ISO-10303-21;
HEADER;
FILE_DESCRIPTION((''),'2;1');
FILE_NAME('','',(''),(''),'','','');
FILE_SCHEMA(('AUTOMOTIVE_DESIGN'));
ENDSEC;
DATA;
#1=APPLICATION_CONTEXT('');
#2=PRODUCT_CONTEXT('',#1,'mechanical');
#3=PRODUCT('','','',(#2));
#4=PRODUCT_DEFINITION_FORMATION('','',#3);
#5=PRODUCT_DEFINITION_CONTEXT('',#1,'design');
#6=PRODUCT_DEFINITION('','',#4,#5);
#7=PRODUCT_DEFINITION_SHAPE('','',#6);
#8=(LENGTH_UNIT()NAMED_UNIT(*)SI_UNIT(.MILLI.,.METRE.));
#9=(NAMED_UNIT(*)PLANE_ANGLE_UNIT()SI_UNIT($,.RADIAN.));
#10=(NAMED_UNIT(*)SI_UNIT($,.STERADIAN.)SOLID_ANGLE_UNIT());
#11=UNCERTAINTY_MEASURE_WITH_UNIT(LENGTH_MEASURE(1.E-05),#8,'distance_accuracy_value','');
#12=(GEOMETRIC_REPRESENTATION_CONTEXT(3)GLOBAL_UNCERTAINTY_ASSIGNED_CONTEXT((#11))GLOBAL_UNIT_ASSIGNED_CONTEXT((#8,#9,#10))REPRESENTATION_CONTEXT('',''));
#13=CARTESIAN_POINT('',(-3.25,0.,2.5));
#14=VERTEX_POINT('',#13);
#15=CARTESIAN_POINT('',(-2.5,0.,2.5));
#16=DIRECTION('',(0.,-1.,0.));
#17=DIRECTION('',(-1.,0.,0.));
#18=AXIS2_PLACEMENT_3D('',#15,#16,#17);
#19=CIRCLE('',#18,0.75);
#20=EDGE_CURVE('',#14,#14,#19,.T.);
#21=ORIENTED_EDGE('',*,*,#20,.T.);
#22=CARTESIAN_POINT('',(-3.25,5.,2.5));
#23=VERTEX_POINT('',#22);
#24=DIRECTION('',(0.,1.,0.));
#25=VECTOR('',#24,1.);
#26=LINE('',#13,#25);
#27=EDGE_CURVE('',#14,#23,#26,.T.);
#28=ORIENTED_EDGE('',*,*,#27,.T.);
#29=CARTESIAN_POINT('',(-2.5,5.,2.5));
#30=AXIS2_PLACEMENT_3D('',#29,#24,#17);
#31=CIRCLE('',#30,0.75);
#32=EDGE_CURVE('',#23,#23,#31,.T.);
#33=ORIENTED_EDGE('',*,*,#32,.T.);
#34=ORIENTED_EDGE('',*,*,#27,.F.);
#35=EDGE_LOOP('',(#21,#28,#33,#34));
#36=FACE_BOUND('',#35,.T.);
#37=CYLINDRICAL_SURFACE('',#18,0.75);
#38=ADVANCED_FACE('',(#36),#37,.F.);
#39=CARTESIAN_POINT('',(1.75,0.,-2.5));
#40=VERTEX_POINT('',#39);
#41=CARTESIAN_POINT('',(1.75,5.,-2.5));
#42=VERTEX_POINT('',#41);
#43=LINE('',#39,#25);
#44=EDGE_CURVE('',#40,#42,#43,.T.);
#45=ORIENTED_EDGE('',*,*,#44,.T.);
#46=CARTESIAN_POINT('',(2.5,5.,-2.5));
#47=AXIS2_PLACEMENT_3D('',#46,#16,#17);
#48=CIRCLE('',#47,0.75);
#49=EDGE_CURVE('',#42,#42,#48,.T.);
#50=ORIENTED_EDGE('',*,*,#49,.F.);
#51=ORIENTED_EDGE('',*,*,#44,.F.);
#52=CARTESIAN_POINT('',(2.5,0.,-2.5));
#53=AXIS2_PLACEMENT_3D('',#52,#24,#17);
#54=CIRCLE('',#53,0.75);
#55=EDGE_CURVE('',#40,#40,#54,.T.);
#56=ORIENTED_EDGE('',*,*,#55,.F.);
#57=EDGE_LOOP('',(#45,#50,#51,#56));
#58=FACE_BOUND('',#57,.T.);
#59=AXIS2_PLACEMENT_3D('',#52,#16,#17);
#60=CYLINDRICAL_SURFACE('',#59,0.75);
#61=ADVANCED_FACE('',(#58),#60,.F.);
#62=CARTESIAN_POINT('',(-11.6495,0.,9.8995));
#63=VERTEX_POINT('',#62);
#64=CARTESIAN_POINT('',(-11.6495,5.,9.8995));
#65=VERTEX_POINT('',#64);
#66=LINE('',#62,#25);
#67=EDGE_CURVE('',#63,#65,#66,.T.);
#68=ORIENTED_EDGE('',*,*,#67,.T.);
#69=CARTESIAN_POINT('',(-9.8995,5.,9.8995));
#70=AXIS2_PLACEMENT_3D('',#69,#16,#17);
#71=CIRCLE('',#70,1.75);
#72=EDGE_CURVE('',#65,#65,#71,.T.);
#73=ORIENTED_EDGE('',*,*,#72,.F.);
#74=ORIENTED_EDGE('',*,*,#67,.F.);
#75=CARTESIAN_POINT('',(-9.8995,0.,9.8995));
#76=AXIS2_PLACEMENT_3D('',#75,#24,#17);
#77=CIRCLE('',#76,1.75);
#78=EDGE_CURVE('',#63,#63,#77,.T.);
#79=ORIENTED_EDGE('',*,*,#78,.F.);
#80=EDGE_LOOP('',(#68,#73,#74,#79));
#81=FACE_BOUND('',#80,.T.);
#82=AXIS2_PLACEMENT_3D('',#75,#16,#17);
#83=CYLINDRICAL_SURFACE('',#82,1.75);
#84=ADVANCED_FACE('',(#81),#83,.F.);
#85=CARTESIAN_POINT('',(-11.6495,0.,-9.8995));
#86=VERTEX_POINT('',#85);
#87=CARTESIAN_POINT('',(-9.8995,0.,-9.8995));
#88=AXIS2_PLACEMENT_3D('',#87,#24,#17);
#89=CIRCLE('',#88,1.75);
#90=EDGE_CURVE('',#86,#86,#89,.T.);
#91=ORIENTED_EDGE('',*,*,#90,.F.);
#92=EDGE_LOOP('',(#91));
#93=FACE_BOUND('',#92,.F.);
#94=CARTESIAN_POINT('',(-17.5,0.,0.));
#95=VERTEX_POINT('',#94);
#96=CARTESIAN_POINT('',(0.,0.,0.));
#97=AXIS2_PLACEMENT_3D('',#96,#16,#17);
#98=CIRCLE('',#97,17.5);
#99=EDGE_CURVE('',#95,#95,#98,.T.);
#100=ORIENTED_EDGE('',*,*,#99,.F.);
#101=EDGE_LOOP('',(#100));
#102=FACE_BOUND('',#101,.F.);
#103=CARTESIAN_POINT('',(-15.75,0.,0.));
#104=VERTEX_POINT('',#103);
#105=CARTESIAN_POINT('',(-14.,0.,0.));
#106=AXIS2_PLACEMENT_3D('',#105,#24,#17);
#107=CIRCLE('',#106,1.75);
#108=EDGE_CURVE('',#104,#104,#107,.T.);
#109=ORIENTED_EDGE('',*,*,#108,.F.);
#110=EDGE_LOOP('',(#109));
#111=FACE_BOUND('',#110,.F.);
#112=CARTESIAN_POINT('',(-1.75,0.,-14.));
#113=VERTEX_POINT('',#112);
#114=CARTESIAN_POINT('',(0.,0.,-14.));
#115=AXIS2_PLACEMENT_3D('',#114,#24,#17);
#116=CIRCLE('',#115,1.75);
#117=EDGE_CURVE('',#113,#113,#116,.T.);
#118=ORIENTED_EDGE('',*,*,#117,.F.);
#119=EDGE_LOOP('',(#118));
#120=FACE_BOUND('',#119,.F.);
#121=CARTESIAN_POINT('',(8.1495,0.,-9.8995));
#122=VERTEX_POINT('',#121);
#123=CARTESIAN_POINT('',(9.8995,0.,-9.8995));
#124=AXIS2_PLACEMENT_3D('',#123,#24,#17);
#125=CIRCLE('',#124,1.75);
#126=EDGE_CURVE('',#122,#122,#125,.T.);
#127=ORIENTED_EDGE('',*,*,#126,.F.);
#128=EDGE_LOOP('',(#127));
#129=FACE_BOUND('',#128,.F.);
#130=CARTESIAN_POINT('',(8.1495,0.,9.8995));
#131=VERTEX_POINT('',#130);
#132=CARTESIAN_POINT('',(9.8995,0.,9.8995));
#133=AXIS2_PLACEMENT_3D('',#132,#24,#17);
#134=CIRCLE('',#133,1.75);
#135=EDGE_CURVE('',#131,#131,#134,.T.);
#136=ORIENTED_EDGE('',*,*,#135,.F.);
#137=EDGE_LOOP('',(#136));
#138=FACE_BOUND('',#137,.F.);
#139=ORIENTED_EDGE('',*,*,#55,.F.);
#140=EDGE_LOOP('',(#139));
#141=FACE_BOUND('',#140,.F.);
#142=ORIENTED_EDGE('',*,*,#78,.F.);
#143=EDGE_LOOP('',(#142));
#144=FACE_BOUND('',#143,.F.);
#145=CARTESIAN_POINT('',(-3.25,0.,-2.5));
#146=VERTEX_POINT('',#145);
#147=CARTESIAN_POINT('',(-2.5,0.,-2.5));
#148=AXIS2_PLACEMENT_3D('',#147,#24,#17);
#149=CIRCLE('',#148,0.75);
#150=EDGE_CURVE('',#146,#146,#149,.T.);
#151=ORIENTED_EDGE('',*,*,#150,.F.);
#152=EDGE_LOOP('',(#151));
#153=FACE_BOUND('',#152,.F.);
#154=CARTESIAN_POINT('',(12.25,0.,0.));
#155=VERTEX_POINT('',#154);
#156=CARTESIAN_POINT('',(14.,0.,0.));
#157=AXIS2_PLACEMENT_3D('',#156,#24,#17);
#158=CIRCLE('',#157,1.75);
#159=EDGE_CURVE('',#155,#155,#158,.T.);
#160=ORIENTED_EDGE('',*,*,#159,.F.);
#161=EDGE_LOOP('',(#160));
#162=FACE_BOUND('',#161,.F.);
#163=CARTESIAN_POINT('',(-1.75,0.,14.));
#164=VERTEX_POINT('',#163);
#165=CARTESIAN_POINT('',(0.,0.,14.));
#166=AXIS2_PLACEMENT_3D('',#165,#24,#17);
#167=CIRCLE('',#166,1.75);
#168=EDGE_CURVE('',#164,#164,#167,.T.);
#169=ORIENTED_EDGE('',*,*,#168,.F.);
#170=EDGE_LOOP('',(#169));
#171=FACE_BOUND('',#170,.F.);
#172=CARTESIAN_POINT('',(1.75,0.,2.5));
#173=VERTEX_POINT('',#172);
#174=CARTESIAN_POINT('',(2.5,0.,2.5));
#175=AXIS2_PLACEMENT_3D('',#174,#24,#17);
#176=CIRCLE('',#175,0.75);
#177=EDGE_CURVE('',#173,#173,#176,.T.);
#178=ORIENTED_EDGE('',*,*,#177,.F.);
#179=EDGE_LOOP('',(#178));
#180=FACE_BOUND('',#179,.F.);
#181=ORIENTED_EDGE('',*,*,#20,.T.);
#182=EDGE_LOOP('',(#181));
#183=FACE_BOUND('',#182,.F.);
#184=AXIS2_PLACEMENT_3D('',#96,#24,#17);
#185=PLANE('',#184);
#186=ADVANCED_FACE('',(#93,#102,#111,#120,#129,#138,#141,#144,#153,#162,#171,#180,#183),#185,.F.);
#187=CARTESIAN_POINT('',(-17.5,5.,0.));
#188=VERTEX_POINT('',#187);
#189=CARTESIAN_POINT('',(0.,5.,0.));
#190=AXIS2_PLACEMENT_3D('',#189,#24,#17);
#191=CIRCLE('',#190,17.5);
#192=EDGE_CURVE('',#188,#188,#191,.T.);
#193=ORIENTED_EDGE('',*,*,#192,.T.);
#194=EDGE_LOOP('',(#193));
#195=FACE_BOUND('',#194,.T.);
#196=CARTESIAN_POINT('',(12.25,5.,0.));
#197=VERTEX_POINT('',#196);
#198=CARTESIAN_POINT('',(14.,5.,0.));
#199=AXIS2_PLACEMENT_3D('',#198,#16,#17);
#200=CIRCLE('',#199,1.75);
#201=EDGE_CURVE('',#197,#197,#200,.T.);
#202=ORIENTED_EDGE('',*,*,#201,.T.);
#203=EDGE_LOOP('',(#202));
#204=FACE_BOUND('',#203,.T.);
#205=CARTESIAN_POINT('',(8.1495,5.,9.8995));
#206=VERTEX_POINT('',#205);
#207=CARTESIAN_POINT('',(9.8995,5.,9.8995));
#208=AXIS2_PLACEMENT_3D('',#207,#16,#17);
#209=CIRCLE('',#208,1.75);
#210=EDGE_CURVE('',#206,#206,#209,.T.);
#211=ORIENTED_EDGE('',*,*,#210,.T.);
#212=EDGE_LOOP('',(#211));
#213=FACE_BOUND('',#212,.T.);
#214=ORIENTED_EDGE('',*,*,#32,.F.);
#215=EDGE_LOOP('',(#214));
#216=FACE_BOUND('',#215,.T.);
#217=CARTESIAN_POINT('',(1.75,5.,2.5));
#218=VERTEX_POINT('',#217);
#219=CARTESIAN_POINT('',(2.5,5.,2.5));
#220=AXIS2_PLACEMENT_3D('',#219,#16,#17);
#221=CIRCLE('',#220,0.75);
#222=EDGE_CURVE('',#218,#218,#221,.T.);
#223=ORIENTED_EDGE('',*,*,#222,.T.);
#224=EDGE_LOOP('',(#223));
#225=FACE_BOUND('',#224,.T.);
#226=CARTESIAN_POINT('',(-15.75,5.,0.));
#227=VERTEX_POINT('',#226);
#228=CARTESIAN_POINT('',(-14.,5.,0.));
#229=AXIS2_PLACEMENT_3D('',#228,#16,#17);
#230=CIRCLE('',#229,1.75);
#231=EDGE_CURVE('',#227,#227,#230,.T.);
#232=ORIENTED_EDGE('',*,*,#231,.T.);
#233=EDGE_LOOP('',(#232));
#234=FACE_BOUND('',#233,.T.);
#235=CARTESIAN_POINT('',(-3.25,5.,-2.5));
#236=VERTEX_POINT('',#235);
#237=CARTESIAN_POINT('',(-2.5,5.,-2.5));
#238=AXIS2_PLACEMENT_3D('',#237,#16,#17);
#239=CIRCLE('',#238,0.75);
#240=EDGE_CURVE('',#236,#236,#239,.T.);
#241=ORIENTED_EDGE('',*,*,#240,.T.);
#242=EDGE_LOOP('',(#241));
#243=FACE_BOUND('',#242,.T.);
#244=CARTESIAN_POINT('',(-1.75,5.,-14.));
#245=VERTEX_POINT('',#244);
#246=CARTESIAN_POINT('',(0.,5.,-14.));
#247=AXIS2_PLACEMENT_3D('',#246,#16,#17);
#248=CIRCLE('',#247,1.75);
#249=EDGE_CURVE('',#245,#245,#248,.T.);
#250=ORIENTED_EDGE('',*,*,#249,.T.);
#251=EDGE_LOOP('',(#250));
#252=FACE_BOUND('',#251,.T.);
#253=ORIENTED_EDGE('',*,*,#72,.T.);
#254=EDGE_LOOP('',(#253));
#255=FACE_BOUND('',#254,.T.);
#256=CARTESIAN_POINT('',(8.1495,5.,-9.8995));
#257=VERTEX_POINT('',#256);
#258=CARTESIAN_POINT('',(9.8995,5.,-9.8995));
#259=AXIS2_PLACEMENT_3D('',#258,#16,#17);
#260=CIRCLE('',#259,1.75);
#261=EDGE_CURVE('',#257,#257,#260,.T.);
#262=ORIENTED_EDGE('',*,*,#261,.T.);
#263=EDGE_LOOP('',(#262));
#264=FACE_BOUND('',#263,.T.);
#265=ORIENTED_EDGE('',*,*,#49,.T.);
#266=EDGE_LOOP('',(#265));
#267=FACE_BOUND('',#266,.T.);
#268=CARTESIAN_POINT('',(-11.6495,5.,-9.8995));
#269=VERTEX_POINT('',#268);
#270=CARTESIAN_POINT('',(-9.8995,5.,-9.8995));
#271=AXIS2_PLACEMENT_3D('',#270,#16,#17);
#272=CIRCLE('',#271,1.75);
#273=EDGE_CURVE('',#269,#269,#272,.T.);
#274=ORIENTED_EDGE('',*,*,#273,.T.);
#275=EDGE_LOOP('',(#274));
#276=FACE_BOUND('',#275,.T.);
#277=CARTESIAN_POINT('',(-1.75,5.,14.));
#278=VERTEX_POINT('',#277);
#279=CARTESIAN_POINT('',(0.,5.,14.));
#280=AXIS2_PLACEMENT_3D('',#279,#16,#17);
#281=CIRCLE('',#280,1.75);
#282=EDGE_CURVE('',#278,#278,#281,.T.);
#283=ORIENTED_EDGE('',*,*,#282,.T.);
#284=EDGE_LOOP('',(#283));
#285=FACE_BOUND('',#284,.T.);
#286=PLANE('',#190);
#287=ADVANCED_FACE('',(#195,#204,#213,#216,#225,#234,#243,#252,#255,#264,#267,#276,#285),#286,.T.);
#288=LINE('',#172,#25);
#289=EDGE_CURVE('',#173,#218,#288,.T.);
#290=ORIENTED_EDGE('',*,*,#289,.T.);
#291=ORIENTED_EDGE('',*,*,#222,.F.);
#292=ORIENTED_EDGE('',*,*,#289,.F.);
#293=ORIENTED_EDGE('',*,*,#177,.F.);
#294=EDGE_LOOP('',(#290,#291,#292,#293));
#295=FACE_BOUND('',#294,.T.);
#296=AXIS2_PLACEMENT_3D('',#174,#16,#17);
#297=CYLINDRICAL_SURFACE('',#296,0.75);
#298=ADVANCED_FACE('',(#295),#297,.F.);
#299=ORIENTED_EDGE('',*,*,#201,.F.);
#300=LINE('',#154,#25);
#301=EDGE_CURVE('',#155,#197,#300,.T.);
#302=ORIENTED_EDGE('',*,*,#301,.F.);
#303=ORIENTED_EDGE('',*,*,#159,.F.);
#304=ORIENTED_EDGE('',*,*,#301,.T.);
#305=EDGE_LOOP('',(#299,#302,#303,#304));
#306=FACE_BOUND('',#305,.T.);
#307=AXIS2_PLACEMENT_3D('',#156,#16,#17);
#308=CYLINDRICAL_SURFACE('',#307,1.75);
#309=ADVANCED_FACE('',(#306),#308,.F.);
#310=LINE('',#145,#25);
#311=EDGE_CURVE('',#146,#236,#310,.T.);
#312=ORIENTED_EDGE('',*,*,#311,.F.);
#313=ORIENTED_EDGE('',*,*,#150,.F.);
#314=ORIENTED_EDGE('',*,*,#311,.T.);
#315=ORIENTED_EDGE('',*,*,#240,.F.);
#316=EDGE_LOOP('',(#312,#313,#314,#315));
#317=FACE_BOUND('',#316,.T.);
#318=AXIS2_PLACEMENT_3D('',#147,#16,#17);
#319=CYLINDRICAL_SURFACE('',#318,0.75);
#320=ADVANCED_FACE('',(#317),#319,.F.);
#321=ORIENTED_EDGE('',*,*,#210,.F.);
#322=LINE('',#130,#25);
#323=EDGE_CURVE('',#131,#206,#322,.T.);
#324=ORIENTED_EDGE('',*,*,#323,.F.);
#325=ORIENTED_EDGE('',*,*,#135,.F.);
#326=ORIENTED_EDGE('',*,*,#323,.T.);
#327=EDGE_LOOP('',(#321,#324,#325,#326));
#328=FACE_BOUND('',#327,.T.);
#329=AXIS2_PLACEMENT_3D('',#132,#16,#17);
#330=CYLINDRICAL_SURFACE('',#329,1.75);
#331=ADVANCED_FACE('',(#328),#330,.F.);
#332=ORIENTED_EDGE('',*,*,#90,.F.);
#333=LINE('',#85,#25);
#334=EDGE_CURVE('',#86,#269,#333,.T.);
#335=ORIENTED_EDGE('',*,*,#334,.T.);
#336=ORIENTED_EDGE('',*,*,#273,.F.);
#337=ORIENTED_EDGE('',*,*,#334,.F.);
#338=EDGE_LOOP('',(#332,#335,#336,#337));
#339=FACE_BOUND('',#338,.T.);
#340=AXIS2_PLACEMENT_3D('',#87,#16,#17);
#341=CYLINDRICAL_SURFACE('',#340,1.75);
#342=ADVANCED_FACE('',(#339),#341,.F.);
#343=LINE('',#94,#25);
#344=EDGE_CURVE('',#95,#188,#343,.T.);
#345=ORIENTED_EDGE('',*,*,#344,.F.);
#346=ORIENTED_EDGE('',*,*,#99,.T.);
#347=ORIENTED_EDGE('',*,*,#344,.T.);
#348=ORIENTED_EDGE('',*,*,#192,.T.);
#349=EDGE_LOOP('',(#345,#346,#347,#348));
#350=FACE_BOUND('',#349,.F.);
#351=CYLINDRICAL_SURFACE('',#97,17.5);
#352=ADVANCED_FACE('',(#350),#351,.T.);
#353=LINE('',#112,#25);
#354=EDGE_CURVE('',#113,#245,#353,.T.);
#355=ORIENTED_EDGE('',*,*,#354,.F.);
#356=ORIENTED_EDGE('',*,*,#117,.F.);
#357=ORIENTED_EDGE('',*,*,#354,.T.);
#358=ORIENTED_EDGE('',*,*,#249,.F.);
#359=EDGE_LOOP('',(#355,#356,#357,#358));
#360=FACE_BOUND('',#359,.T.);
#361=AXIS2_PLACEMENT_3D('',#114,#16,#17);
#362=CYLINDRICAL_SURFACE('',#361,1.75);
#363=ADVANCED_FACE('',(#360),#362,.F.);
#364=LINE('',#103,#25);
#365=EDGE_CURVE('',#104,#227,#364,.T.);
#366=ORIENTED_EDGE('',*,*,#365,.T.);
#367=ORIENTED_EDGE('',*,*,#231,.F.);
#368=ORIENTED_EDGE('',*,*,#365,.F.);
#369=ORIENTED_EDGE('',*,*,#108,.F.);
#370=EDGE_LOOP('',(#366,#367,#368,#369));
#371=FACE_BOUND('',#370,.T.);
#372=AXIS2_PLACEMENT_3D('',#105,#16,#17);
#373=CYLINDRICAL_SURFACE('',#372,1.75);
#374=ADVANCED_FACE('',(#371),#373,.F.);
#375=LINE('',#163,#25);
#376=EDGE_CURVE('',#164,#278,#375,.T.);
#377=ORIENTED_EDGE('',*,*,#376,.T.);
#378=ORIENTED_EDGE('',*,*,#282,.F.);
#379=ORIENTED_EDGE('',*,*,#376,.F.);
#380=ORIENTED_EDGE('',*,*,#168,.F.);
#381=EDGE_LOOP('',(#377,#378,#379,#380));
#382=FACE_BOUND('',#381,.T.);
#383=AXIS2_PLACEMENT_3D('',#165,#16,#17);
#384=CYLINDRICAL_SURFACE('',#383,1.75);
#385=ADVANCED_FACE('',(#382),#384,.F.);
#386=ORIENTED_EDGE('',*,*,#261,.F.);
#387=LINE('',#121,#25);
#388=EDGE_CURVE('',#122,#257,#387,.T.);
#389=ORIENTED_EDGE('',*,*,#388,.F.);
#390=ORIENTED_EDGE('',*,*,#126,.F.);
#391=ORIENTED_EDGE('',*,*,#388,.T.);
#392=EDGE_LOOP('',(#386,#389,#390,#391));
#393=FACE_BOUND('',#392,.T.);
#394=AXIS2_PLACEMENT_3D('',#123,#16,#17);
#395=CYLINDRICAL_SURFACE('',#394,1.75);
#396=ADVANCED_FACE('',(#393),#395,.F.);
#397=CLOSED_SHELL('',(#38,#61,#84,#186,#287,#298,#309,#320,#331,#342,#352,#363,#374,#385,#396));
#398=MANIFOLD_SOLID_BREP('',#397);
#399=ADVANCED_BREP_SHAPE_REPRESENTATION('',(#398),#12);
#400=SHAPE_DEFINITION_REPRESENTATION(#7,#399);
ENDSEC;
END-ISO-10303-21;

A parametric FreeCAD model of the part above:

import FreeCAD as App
import Part
import Sketcher
Q = App.Units.Quantity

doc = App.newDocument("Part")
body = doc.addObject("PartDesign::Body", "Body")

sketch1 = body.newObject("Sketcher::SketchObject", "Sketch")
sketch1.AttachmentSupport = (doc.getObject("XZ_Plane"), [""])
sketch1.MapMode = "FlatFace"
sketch1.addGeometry([
    Part.Circle(App.Vector(0, 0, 0), App.Vector(0, 0, 1), 17.5),
    Part.Circle(App.Vector(-2.5, 2.5, 0), App.Vector(0, 0, 1), 0.8),
    Part.Circle(App.Vector(-2.5, -2.5, 0), App.Vector(0, 0, 1), 0.8),
    Part.Circle(App.Vector(-9.9, 9.9, 0), App.Vector(0, 0, 1), 1.8),
    Part.Circle(App.Vector(-14, 0, 0), App.Vector(0, 0, 1), 1.8),
    Part.Circle(App.Vector(-9.9, -9.9, 0), App.Vector(0, 0, 1), 1.8),
    Part.Circle(App.Vector(2.5, 2.5, 0), App.Vector(0, 0, 1), 0.8),
    Part.Circle(App.Vector(0, 14, 0), App.Vector(0, 0, 1), 1.8),
    Part.Circle(App.Vector(0, -14, 0), App.Vector(0, 0, 1), 1.8),
    Part.Circle(App.Vector(2.5, -2.5, 0), App.Vector(0, 0, 1), 0.8),
    Part.Circle(App.Vector(9.9, 9.9, 0), App.Vector(0, 0, 1), 1.8),
    Part.Circle(App.Vector(9.9, -9.9, 0), App.Vector(0, 0, 1), 1.8),
    Part.Circle(App.Vector(14, 0, 0), App.Vector(0, 0, 1), 1.8),
], False)
sketch1.addConstraint([
    Sketcher.Constraint("Coincident", 0, 3, -1, 1),
    Sketcher.Constraint("Equal", 1, 2),
    Sketcher.Constraint("Equal", 3, 4),
    Sketcher.Constraint("Equal", 4, 5),
    Sketcher.Constraint("Equal", 2, 6),
    Sketcher.Constraint("Equal", 5, 7),
    Sketcher.Constraint("Equal", 7, 8),
    Sketcher.Constraint("Equal", 6, 9),
    Sketcher.Constraint("Equal", 8, 10),
    Sketcher.Constraint("Equal", 10, 11),
    Sketcher.Constraint("Equal", 11, 12),
    Sketcher.Constraint("Symmetric", 2, 3, 6, 3, -1, 1),
    Sketcher.Constraint("Symmetric", 7, 3, 8, 3, -1, 1),
    Sketcher.Constraint("Symmetric", 1, 3, 9, 3, -1, 1),
    Sketcher.Constraint("Symmetric", 5, 3, 10, 3, -1, 1),
    Sketcher.Constraint("Symmetric", 3, 3, 11, 3, -1, 1),
    Sketcher.Constraint("Symmetric", 4, 3, 12, 3, -1, 1),
    Sketcher.Constraint("Symmetric", 1, 3, 6, 3, -2),
    Sketcher.Constraint("Symmetric", 3, 3, 10, 3, -2),
    Sketcher.Constraint("PointOnObject", 4, 3, -1),
    Sketcher.Constraint("PointOnObject", 7, 3, -2),
    Sketcher.Constraint("Diameter", 0, Q("35 mm")),
    Sketcher.Constraint("Diameter", 1, Q("1.5 mm")),
    Sketcher.Constraint("Diameter", 3, Q("3.5 mm")),
    Sketcher.Constraint("DistanceY", 2, 3, 1, 3, Q("5 mm")),
    Sketcher.Constraint("DistanceX", 1, 3, 6, 3, Q("5 mm")),
    Sketcher.Constraint("DistanceX", 4, 3, -1, 1, Q("14 mm")),
    Sketcher.Constraint("DistanceY", -1, 1, 7, 3, Q("14 mm")),
    Sketcher.Constraint("DistanceY", 5, 3, 3, 3, Q("19.799 mm")),
    Sketcher.Constraint("DistanceX", 3, 3, -1, 1, Q("9.8995 mm")),
])
pad1 = body.newObject("PartDesign::Pad", "Pad")
pad1.Profile = sketch1
pad1.Length = 5
pad1.Reversed = True

doc.recompute()
